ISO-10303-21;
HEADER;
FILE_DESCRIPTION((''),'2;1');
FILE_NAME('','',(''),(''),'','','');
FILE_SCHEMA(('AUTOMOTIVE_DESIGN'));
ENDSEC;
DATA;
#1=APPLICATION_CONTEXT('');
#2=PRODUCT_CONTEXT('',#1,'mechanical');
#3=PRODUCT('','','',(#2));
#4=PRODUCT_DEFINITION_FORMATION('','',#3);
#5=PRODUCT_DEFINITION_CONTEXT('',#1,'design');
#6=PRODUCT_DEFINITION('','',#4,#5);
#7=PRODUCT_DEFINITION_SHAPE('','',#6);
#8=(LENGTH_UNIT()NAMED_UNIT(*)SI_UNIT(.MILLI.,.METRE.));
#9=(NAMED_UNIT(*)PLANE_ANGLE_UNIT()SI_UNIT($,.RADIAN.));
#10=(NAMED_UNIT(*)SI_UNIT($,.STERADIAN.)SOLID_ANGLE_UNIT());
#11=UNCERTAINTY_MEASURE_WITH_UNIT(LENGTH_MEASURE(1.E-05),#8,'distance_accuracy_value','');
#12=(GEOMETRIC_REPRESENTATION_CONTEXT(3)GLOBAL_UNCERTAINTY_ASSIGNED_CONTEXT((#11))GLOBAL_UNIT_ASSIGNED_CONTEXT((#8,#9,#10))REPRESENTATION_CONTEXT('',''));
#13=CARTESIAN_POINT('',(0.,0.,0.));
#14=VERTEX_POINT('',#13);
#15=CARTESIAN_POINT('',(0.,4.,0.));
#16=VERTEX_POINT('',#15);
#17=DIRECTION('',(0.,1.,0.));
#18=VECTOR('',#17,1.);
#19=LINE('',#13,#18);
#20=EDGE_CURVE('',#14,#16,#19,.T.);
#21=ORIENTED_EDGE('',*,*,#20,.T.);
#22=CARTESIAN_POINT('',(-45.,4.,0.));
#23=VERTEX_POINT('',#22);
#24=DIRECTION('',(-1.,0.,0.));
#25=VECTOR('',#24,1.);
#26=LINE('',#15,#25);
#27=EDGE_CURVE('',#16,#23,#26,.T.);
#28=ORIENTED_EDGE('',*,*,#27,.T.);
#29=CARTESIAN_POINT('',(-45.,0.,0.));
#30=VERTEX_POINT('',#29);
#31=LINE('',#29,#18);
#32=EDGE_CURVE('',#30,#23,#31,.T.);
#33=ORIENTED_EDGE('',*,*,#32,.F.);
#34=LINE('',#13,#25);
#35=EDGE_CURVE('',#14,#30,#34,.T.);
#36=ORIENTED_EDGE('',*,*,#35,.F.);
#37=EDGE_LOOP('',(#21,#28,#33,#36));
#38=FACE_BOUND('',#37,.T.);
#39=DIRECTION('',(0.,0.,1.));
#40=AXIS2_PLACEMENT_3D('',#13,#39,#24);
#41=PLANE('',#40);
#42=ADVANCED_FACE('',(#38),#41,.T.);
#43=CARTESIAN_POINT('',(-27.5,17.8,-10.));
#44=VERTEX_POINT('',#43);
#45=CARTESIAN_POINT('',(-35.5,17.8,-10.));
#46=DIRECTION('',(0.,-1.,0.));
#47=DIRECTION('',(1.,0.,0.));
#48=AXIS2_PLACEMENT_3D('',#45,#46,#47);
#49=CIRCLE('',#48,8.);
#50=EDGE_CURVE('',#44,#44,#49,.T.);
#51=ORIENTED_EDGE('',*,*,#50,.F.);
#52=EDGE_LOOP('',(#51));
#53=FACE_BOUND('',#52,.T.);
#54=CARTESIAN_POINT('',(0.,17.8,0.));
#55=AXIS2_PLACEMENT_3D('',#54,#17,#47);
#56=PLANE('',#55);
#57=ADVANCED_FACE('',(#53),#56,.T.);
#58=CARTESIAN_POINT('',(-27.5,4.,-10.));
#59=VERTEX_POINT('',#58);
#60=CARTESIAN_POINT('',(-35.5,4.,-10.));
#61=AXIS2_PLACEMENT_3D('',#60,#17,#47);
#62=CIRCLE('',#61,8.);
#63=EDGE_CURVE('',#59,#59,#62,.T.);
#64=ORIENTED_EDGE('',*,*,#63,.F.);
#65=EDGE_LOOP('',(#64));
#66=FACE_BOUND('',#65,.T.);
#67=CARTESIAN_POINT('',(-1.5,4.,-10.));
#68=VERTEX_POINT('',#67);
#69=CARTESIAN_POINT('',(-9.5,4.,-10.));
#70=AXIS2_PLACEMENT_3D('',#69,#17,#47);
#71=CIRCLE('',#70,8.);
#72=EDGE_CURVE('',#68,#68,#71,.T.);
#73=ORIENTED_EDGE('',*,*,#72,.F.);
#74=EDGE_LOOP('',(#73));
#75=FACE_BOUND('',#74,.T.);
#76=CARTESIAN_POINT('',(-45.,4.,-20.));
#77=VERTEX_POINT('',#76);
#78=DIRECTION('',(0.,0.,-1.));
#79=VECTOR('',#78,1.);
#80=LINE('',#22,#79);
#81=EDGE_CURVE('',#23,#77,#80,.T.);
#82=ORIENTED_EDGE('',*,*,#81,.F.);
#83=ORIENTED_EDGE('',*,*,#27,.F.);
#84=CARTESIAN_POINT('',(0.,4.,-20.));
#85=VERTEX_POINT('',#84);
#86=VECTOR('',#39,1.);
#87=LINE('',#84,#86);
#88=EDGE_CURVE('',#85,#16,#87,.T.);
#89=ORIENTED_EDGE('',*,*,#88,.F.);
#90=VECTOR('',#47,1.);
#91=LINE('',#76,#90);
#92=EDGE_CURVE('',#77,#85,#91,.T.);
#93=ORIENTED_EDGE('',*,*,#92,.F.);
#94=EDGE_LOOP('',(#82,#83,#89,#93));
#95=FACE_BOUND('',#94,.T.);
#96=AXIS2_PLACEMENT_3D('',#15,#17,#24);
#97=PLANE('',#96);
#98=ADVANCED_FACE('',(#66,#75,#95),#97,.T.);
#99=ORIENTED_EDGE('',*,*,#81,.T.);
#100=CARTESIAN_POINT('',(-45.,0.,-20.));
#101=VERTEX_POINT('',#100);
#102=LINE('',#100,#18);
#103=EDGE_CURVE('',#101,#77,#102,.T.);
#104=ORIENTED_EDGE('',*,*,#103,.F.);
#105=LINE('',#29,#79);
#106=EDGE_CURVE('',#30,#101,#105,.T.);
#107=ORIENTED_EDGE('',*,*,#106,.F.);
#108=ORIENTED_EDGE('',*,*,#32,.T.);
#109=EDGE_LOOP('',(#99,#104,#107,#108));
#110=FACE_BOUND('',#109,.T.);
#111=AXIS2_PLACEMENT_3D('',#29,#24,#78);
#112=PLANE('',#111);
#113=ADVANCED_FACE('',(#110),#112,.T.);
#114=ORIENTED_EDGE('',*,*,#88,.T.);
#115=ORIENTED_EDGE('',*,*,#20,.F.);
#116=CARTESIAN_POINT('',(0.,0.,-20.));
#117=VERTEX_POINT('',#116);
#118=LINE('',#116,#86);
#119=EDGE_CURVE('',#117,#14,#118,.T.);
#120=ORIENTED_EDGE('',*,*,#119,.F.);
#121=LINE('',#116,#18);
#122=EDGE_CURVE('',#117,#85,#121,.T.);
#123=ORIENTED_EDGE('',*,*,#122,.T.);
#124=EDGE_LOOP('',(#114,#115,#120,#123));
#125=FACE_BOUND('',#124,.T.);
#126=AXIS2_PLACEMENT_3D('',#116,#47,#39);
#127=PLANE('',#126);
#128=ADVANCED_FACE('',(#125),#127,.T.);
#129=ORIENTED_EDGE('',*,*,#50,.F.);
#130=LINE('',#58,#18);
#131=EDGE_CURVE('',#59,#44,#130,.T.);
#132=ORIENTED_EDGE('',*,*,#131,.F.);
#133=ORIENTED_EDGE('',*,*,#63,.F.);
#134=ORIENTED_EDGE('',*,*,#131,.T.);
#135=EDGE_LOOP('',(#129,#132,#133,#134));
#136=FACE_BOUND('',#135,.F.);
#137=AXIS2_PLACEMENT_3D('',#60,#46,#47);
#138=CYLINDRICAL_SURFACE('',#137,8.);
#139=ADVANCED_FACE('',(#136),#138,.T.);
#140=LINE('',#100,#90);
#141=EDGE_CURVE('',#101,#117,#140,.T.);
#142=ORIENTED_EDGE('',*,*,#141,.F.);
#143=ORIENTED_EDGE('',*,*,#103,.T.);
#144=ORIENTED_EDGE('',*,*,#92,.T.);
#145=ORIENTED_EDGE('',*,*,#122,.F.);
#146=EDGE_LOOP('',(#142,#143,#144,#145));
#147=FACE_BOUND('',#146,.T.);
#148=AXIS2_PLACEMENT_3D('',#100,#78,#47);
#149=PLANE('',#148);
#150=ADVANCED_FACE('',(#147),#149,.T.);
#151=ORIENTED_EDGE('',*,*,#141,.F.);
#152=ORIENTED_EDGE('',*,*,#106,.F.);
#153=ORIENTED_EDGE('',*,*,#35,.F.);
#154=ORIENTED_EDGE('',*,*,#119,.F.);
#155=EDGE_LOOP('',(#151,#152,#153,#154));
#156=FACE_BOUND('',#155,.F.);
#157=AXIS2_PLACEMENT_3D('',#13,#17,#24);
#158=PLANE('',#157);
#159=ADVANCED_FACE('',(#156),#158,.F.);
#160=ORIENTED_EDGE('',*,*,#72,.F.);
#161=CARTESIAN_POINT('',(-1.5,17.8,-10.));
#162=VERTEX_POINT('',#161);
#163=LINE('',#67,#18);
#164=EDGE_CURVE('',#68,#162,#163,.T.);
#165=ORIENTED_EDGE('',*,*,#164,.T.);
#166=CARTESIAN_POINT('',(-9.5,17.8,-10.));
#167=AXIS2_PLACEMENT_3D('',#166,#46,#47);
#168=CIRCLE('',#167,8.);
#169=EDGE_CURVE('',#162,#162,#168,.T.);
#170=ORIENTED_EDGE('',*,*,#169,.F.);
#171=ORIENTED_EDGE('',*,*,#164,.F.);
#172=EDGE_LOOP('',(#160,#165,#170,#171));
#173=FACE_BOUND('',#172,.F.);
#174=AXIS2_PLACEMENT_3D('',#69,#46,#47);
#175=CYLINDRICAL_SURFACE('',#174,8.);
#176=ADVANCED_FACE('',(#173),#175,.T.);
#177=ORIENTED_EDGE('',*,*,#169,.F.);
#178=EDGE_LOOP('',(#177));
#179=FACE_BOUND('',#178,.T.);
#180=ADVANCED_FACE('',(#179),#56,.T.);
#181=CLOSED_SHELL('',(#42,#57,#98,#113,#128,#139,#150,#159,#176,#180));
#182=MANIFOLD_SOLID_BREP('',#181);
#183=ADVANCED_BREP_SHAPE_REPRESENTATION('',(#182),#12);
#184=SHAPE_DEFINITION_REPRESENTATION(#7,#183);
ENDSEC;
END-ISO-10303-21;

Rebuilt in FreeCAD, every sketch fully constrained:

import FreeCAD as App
import Part
import Sketcher
from FreeCAD import Vector
Q = App.Units.Quantity


def add_polygon(sketch, points):
    """Adds a closed chain of lines whose ends are joined by coincident constraints."""
    first, n = sketch.GeometryCount, len(points)
    for a, b in zip(points, points[1:] + points[:1]):
        sketch.addGeometry(Part.LineSegment(App.Vector(*a, 0), App.Vector(*b, 0)), False)
    for i in range(n):
        sketch.addConstraint(Sketcher.Constraint("Coincident", first + i, 2, first + (i + 1) % n, 1))

doc = App.newDocument("Part")
body = doc.addObject("PartDesign::Body", "Body")

sketch1 = doc.addObject("Sketcher::SketchObject", "Sketch")
body.addObject(sketch1)
sketch1.AttachmentSupport = (doc.XZ_Plane, [""])
sketch1.MapMode = "FlatFace"
add_polygon(sketch1, [(-45, 0), (0, 0), (0, -20), (-45, -20)])
sketch1.addConstraint([
    Sketcher.Constraint("Horizontal", 0),
    Sketcher.Constraint("Vertical", 1),
    Sketcher.Constraint("Horizontal", 2),
    Sketcher.Constraint("Vertical", 3),
    Sketcher.Constraint("Coincident", 0, 2, -1, 1),
    Sketcher.Constraint("DistanceX", 0, 1, 0, 2, Q("45 mm")),
    Sketcher.Constraint("DistanceY", 1, 2, 1, 1, Q("20 mm")),
])
pad1 = doc.addObject("PartDesign::Pad", "Pad")
body.addObject(pad1)
pad1.Profile = sketch1
pad1.Length = 4
pad1.Reversed = True

sketch2 = doc.addObject("Sketcher::SketchObject", "Sketch001")
body.addObject(sketch2)
sketch2.AttachmentSupport = (doc.XZ_Plane, [""])
sketch2.MapMode = "FlatFace"
sketch2.AttachmentOffset = App.Placement(Vector(0, 0, -4), App.Rotation())
sketch2.addGeometry([
    Part.Circle(Vector(-36, -10, 0), Vector(0, 0, 1), 8),
    Part.Circle(Vector(-10, -10, 0), Vector(0, 0, 1), 8),
], False)
sketch2.addConstraint([
    Sketcher.Constraint("Equal", 0, 1),
    Sketcher.Constraint("Horizontal", 0, 3, 1, 3),
    Sketcher.Constraint("Diameter", 0, Q("16 mm")),
    Sketcher.Constraint("DistanceX", 0, 3, 1, 3, Q("26 mm")),
    Sketcher.Constraint("DistanceX", 1, 3, -1, 1, Q("9.5 mm")),
    Sketcher.Constraint("DistanceY", 0, 3, -1, 1, Q("10 mm")),
])
pad2 = doc.addObject("PartDesign::Pad", "Pad001")
body.addObject(pad2)
pad2.Profile = sketch2
pad2.Length = 13.8
pad2.Reversed = True

doc.recompute()
